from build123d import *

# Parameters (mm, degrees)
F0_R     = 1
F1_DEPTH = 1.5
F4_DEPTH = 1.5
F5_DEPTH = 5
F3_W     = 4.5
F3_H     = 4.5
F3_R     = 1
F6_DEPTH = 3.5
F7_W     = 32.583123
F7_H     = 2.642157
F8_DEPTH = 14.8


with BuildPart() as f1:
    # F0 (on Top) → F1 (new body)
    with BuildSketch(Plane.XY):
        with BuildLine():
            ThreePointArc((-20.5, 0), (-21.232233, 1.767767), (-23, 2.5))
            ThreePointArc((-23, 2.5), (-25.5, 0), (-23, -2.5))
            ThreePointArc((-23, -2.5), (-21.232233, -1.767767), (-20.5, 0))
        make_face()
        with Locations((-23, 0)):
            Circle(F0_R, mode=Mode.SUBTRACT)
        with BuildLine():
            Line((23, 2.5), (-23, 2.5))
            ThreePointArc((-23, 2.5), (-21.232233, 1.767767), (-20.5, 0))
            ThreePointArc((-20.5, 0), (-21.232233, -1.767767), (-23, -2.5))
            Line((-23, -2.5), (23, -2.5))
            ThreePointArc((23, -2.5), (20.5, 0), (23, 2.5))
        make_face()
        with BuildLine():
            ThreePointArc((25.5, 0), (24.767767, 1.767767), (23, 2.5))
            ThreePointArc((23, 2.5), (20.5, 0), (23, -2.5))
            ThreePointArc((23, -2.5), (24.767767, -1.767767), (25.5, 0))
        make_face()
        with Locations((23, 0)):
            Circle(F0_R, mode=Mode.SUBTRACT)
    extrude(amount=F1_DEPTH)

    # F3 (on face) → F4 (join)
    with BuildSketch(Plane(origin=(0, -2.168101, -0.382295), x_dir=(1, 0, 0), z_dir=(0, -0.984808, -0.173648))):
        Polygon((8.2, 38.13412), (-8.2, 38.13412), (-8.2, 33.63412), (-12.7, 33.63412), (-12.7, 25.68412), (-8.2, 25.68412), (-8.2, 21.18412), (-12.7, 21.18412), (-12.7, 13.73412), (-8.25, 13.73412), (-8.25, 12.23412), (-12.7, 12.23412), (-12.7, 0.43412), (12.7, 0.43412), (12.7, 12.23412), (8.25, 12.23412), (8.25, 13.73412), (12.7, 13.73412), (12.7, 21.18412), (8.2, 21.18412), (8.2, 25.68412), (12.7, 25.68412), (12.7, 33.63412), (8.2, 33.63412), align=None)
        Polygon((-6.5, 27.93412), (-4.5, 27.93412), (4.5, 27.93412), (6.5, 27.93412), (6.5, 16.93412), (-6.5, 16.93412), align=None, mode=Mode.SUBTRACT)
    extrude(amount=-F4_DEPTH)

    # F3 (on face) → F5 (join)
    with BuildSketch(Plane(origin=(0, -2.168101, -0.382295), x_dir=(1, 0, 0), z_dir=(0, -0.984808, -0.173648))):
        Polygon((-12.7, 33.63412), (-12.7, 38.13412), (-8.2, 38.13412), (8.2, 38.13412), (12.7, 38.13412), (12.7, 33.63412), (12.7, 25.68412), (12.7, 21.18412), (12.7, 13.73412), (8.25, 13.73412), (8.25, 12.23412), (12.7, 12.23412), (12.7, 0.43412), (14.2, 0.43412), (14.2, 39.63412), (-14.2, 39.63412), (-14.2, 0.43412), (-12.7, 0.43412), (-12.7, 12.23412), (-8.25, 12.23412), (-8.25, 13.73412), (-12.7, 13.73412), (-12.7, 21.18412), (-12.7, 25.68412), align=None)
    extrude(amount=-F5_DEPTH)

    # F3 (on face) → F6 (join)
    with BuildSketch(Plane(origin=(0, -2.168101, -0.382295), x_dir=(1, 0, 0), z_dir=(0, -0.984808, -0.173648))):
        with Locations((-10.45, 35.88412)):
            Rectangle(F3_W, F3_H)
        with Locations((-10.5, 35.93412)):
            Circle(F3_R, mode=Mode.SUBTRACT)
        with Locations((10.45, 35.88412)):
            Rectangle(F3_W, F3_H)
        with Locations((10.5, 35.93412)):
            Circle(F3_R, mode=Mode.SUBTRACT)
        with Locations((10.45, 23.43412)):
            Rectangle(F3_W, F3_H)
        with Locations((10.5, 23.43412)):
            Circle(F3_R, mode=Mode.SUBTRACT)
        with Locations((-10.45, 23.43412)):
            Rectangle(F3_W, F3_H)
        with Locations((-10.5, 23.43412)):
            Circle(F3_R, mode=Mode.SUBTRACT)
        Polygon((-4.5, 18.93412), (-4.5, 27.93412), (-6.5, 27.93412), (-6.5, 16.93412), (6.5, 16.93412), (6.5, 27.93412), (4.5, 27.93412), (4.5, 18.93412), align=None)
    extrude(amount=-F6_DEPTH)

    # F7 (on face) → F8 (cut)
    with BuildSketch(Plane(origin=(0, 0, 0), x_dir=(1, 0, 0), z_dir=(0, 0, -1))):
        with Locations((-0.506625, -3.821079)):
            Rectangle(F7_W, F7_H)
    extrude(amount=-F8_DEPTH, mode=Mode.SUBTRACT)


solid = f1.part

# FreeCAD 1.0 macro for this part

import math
import FreeCAD as App
import Part
import Sketcher
from FreeCAD import Vector


def add_polygon(sketch, points):
    """Adds a closed chain of lines whose ends are joined by coincident constraints."""
    first, n = sketch.GeometryCount, len(points)
    for a, b in zip(points, points[1:] + points[:1]):
        sketch.addGeometry(Part.LineSegment(App.Vector(*a, 0), App.Vector(*b, 0)), False)
    for i in range(n):
        sketch.addConstraint(Sketcher.Constraint("Coincident", first + i, 2, first + (i + 1) % n, 1))

doc = App.newDocument("Part")
params = doc.addObject("Spreadsheet::Sheet", "Params")
for row, (alias, value) in enumerate([
    ("sketch1_diameter", "2 mm"),
    ("sketch1_radius", "2.5 mm"),
    ("sketch1_width", "46 mm"),
    ("pad1_length", "1.5 mm"),
    ("sketch2_width", "13 mm"),
    ("sketch2_height", "11 mm"),
    ("sketch2_width2", "16.4 mm"),
    ("sketch2_width3", "4.5 mm"),
    ("sketch2_height2", "1.5 mm"),
    ("pad2_length", "1.5 mm"),
    ("sketch3_width", "25.4 mm"),
    ("sketch3_width2", "1.5 mm"),
    ("sketch3_height", "24.4 mm"),
    ("sketch3_height2", "11.8 mm"),
    ("sketch3_height3", "39.2 mm"),
    ("pad3_length", "5 mm"),
    ("sketch4_diameter", "2 mm"),
    ("sketch4_width", "2 mm"),
    ("sketch4_width2", "13 mm"),
    ("sketch4_height", "11 mm"),
    ("sketch4_width3", "4.5 mm"),
    ("pad4_length", "3.5 mm"),
    ("pocket1_length", "14.8 mm"),
], start=1):
    params.set(f"A{row}", alias)
    params.set(f"B{row}", "=" + value)
    params.setAlias(f"B{row}", alias)

body = doc.addObject("PartDesign::Body", "Body")

sketch1 = body.newObject("Sketcher::SketchObject", "Sketch")
sketch1.AttachmentSupport = (doc.getObject("XY_Plane"), [""])
sketch1.MapMode = "FlatFace"
sketch1.addGeometry([
    Part.ArcOfCircle(Part.Circle(Vector(-23, 0, 0), Vector(0, 0, 1), 2.5), math.radians(90), math.radians(270)),
    Part.LineSegment(Vector(-23, -2.5, 0), Vector(23, -2.5, 0)),
    Part.ArcOfCircle(Part.Circle(Vector(23, 0, 0), Vector(0, 0, 1), 2.5), math.radians(-90), math.radians(0)),
    Part.ArcOfCircle(Part.Circle(Vector(23, 0, 0), Vector(0, 0, 1), 2.5), math.radians(0), math.radians(90)),
    Part.LineSegment(Vector(23, 2.5, 0), Vector(-23, 2.5, 0)),
    Part.Circle(Vector(-23, 0, 0), Vector(0, 0, 1), 1),
    Part.Circle(Vector(23, 0, 0), Vector(0, 0, 1), 1),
], False)
sketch1.addConstraint([
    Sketcher.Constraint("Tangent", 0, 2, 1, 1),
    Sketcher.Constraint("Tangent", 1, 2, 2, 1),
    Sketcher.Constraint("Tangent", 2, 2, 3, 1),
    Sketcher.Constraint("Tangent", 3, 2, 4, 1),
    Sketcher.Constraint("Tangent", 4, 2, 0, 1),
    Sketcher.Constraint("Horizontal", 1),
    Sketcher.Constraint("Horizontal", 4),
    Sketcher.Constraint("Coincident", 5, 3, 0, 3),
    Sketcher.Constraint("Coincident", 6, 3, 2, 3),
    Sketcher.Constraint("Equal", 0, 2),
    Sketcher.Constraint("Equal", 5, 6),
    Sketcher.Constraint("Symmetric", 0, 3, 2, 3, -1, 1),
    Sketcher.Constraint("PointOnObject", 2, 2, -1),
    Sketcher.Constraint("Diameter", 5, 2.0),
    Sketcher.Constraint("Radius", 0, 2.5),
    Sketcher.Constraint("DistanceX", 1, 1, 1, 2, 46.0),
])
sketch1.setExpression("Constraints[13]", "Params.sketch1_diameter")
sketch1.setExpression("Constraints[14]", "Params.sketch1_radius")
sketch1.setExpression("Constraints[15]", "Params.sketch1_width")
pad1 = body.newObject("PartDesign::Pad", "Pad")
pad1.Profile = sketch1
pad1.setExpression("Length", "Params.pad1_length")

sketch2 = body.newObject("Sketcher::SketchObject", "Sketch001")
sketch2.Placement = App.Placement(Vector(0, -2.168101, -0.382295), App.Rotation(Vector(1, 0, 0), Vector(0, -0.173647963, 0.984807791), Vector(0, -0.984807791, -0.173647963), "ZXY"))
add_polygon(sketch2, [(8.2, 38.1), (-8.2, 38.1), (-8.2, 33.6), (-12.7, 33.6), (-12.7, 25.7), (-8.2, 25.7), (-8.2, 21.2), (-12.7, 21.2), (-12.7, 13.7), (-8.2, 13.7), (-8.2, 12.2), (-12.7, 12.2), (-12.7, 0.4), (12.7, 0.4), (12.7, 12.2), (8.2, 12.2), (8.2, 13.7), (12.7, 13.7), (12.7, 21.2), (8.2, 21.2), (8.2, 25.7), (12.7, 25.7), (12.7, 33.6), (8.2, 33.6)])
add_polygon(sketch2, [(-6.5, 16.9), (-6.5, 27.9), (6.5, 27.9), (6.5, 16.9)])
sketch2.addConstraint([
    Sketcher.Constraint("Horizontal", 0),
    Sketcher.Constraint("Vertical", 1),
    Sketcher.Constraint("Horizontal", 2),
    Sketcher.Constraint("Vertical", 3),
    Sketcher.Constraint("Horizontal", 4),
    Sketcher.Constraint("Vertical", 5),
    Sketcher.Constraint("Horizontal", 6),
    Sketcher.Constraint("Vertical", 7),
    Sketcher.Constraint("Horizontal", 8),
    Sketcher.Constraint("Vertical", 9),
    Sketcher.Constraint("Horizontal", 10),
    Sketcher.Constraint("Vertical", 11),
    Sketcher.Constraint("Horizontal", 12),
    Sketcher.Constraint("Vertical", 13),
    Sketcher.Constraint("Horizontal", 14),
    Sketcher.Constraint("Vertical", 15),
    Sketcher.Constraint("Horizontal", 16),
    Sketcher.Constraint("Vertical", 17),
    Sketcher.Constraint("Horizontal", 18),
    Sketcher.Constraint("Vertical", 19),
    Sketcher.Constraint("Horizontal", 20),
    Sketcher.Constraint("Vertical", 21),
    Sketcher.Constraint("Horizontal", 22),
    Sketcher.Constraint("Vertical", 23),
    Sketcher.Constraint("Vertical", 24),
    Sketcher.Constraint("Horizontal", 25),
    Sketcher.Constraint("Vertical", 26),
    Sketcher.Constraint("Horizontal", 27),
    Sketcher.Constraint("Symmetric", 10, 2, 13, 2, -2),
    Sketcher.Constraint("Symmetric", 8, 2, 15, 2, -2),
    Sketcher.Constraint("Symmetric", 6, 2, 17, 2, -2),
    Sketcher.Constraint("Symmetric", 4, 2, 19, 2, -2),
    Sketcher.Constraint("Symmetric", 2, 2, 21, 2, -2),
    Sketcher.Constraint("Vertical", 1, 2, 4, 2),
    Sketcher.Constraint("Vertical", 3, 2, 6, 2),
    Sketcher.Constraint("Vertical", 7, 2, 10, 2),
    Sketcher.Constraint("Vertical", 19, 2, 22, 2),
    Sketcher.Constraint("Equal", 22, 1),
    Sketcher.Constraint("Equal", 1, 5),
    Sketcher.Constraint("DistanceX", 25, 1, 25, 2, 13.0),
    Sketcher.Constraint("DistanceY", 24, 1, 24, 2, 11.0),
    Sketcher.Constraint("DistanceX", 0, 2, 0, 1, 16.4),
    Sketcher.Constraint("DistanceX", 2, 2, 2, 1, 4.5),
    Sketcher.Constraint("DistanceY", 9, 2, 9, 1, 1.5),
    Sketcher.Constraint("DistanceY", 11, 2, 11, 1, 11.8),
    Sketcher.Constraint("DistanceX", 8, 1, 8, 2, 4.45),
    Sketcher.Constraint("DistanceY", 3, 2, 3, 1, 7.95),
    Sketcher.Constraint("DistanceY", 7, 2, 7, 1, 7.45),
    Sketcher.Constraint("DistanceX", 24, 2, -1, 1, 6.5),
    Sketcher.Constraint("DistanceY", 24, 2, 1, 2, 5.7),
    Sketcher.Constraint("DistanceY", -1, 1, 0, 2, 38.13412),
])
sketch2.setExpression("Constraints[67]", "Params.sketch2_width")
sketch2.setExpression("Constraints[68]", "Params.sketch2_height")
sketch2.setExpression("Constraints[69]", "Params.sketch2_width2")
sketch2.setExpression("Constraints[70]", "Params.sketch2_width3")
sketch2.setExpression("Constraints[71]", "Params.sketch2_height2")
pad2 = body.newObject("PartDesign::Pad", "Pad001")
pad2.Profile = sketch2
pad2.setExpression("Length", "Params.pad2_length")
pad2.Reversed = True

sketch3 = body.newObject("Sketcher::SketchObject", "Sketch002")
sketch3.Placement = App.Placement(Vector(0, -2.168101, -0.382295), App.Rotation(Vector(1, 0, 0), Vector(0, -0.173647963, 0.984807791), Vector(0, -0.984807791, -0.173647963), "ZXY"))
add_polygon(sketch3, [(-12.7, 38.1), (12.7, 38.1), (12.7, 13.7), (8.2, 13.7), (8.2, 12.2), (12.7, 12.2), (12.7, 0.4), (14.2, 0.4), (14.2, 39.6), (-14.2, 39.6), (-14.2, 0.4), (-12.7, 0.4), (-12.7, 12.2), (-8.2, 12.2), (-8.2, 13.7), (-12.7, 13.7)])
sketch3.addConstraint([
    Sketcher.Constraint("Horizontal", 0),
    Sketcher.Constraint("Vertical", 1),
    Sketcher.Constraint("Horizontal", 2),
    Sketcher.Constraint("Vertical", 3),
    Sketcher.Constraint("Horizontal", 4),
    Sketcher.Constraint("Vertical", 5),
    Sketcher.Constraint("Horizontal", 6),
    Sketcher.Constraint("Vertical", 7),
    Sketcher.Constraint("Horizontal", 8),
    Sketcher.Constraint("Vertical", 9),
    Sketcher.Constraint("Horizontal", 10),
    Sketcher.Constraint("Vertical", 11),
    Sketcher.Constraint("Horizontal", 12),
    Sketcher.Constraint("Vertical", 13),
    Sketcher.Constraint("Horizontal", 14),
    Sketcher.Constraint("Vertical", 15),
    Sketcher.Constraint("Symmetric", 6, 2, 9, 2, -2),
    Sketcher.Constraint("Symmetric", 4, 2, 11, 2, -2),
    Sketcher.Constraint("Symmetric", 2, 2, 13, 2, -2),
    Sketcher.Constraint("Vertical", 1, 2, 4, 2),
    Sketcher.Constraint("Vertical", 11, 2, 14, 2),
    Sketcher.Constraint("Equal", 10, 3),
    Sketcher.Constraint("DistanceX", 0, 1, 0, 2, 25.4),
    Sketcher.Constraint("DistanceX", 6, 1, 6, 2, 1.5),
    Sketcher.Constraint("DistanceY", 1, 2, 1, 1, 24.4),
    Sketcher.Constraint("DistanceY", 5, 2, 5, 1, 11.8),
    Sketcher.Constraint("DistanceY", 7, 1, 7, 2, 39.2),
    Sketcher.Constraint("DistanceX", 2, 2, 2, 1, 4.45),
    Sketcher.Constraint("DistanceY", -1, 1, 0, 2, 38.13412),
])
sketch3.setExpression("Constraints[38]", "Params.sketch3_width")
sketch3.setExpression("Constraints[39]", "Params.sketch3_width2")
sketch3.setExpression("Constraints[40]", "Params.sketch3_height")
sketch3.setExpression("Constraints[41]", "Params.sketch3_height2")
sketch3.setExpression("Constraints[42]", "Params.sketch3_height3")
pad3 = body.newObject("PartDesign::Pad", "Pad002")
pad3.Profile = sketch3
pad3.setExpression("Length", "Params.pad3_length")
pad3.Reversed = True

sketch4 = body.newObject("Sketcher::SketchObject", "Sketch003")
sketch4.Placement = App.Placement(Vector(0, -2.168101, -0.382295), App.Rotation(Vector(1, 0, 0), Vector(0, -0.173647963, 0.984807791), Vector(0, -0.984807791, -0.173647963), "ZXY"))
add_polygon(sketch4, [(-12.7, 38.1), (-12.7, 33.6), (-8.2, 33.6), (-8.2, 38.1)])
sketch4.addGeometry(Part.Circle(Vector(-10.5, 35.9, 0), Vector(0, 0, 1), 1), False)
add_polygon(sketch4, [(8.2, 38.1), (8.2, 33.6), (12.7, 33.6), (12.7, 38.1)])
sketch4.addGeometry(Part.Circle(Vector(10.5, 35.9, 0), Vector(0, 0, 1), 1), False)
add_polygon(sketch4, [(8.2, 25.7), (8.2, 21.2), (12.7, 21.2), (12.7, 25.7)])
sketch4.addGeometry(Part.Circle(Vector(10.5, 23.4, 0), Vector(0, 0, 1), 1), False)
add_polygon(sketch4, [(-12.7, 25.7), (-12.7, 21.2), (-8.2, 21.2), (-8.2, 25.7)])
sketch4.addGeometry(Part.Circle(Vector(-10.5, 23.4, 0), Vector(0, 0, 1), 1), False)
add_polygon(sketch4, [(-4.5, 18.9), (-4.5, 27.9), (-6.5, 27.9), (-6.5, 16.9), (6.5, 16.9), (6.5, 27.9), (4.5, 27.9), (4.5, 18.9)])
sketch4.addConstraint([
    Sketcher.Constraint("Vertical", 0),
    Sketcher.Constraint("Horizontal", 1),
    Sketcher.Constraint("Vertical", 2),
    Sketcher.Constraint("Horizontal", 3),
    Sketcher.Constraint("Vertical", 5),
    Sketcher.Constraint("Horizontal", 6),
    Sketcher.Constraint("Vertical", 7),
    Sketcher.Constraint("Horizontal", 8),
    Sketcher.Constraint("Vertical", 10),
    Sketcher.Constraint("Horizontal", 11),
    Sketcher.Constraint("Vertical", 12),
    Sketcher.Constraint("Horizontal", 13),
    Sketcher.Constraint("Vertical", 15),
    Sketcher.Constraint("Horizontal", 16),
    Sketcher.Constraint("Vertical", 17),
    Sketcher.Constraint("Horizontal", 18),
    Sketcher.Constraint("Vertical", 20),
    Sketcher.Constraint("Horizontal", 21),
    Sketcher.Constraint("Vertical", 22),
    Sketcher.Constraint("Horizontal", 23),
    Sketcher.Constraint("Vertical", 24),
    Sketcher.Constraint("Horizontal", 25),
    Sketcher.Constraint("Vertical", 26),
    Sketcher.Constraint("Horizontal", 27),
    Sketcher.Constraint("Equal", 4, 9),
    Sketcher.Constraint("Equal", 9, 14),
    Sketcher.Constraint("Equal", 14, 19),
    Sketcher.Constraint("Symmetric", 4, 3, 9, 3, -2),
    Sketcher.Constraint("Symmetric", 14, 3, 19, 3, -2),
    Sketcher.Constraint("Symmetric", 1, 2, 5, 2, -2),
    Sketcher.Constraint("Symmetric", 3, 2, 7, 2, -2),
    Sketcher.Constraint("Symmetric", 11, 2, 15, 2, -2),
    Sketcher.Constraint("Symmetric", 13, 2, 17, 2, -2),
    Sketcher.Constraint("Symmetric", 21, 2, 24, 2, -2),
    Sketcher.Constraint("Vertical", 9, 3, 14, 3),
    Sketcher.Constraint("Vertical", 8, 2, 10, 2),
    Sketcher.Constraint("Vertical", 7, 2, 11, 2),
    Sketcher.Constraint("Equal", 21, 25),
    Sketcher.Constraint("Equal", 18, 0),
    Sketcher.Constraint("Equal", 7, 10),
    Sketcher.Constraint("Equal", 27, 20),
    Sketcher.Constraint("Diameter", 4, 2.0),
    Sketcher.Constraint("DistanceX", 21, 2, 21, 1, 2.0),
    Sketcher.Constraint("DistanceX", 23, 1, 23, 2, 13.0),
    Sketcher.Constraint("DistanceY", 22, 2, 22, 1, 11.0),
    Sketcher.Constraint("DistanceX", 1, 1, 1, 2, 4.5),
    Sketcher.Constraint("DistanceX", 4, 3, 9, 3, 21.0),
    Sketcher.Constraint("DistanceX", 0, 2, -1, 1, 12.7),
    Sketcher.Constraint("DistanceY", 14, 3, 9, 3, 12.5),
    Sketcher.Constraint("DistanceY", 0, 2, 4, 3, 2.3),
    Sketcher.Constraint("DistanceY", 20, 2, 1, 2, 5.7),
    Sketcher.Constraint("DistanceY", 10, 2, 14, 3, 2.25),
    Sketcher.Constraint("DistanceY", -1, 1, 4, 3, 35.93412),
])
sketch4.setExpression("Constraints[65]", "Params.sketch4_diameter")
sketch4.setExpression("Constraints[66]", "Params.sketch4_width")
sketch4.setExpression("Constraints[67]", "Params.sketch4_width2")
sketch4.setExpression("Constraints[68]", "Params.sketch4_height")
sketch4.setExpression("Constraints[69]", "Params.sketch4_width3")
pad4 = body.newObject("PartDesign::Pad", "Pad003")
pad4.Profile = sketch4
pad4.setExpression("Length", "Params.pad4_length")
pad4.Reversed = True

sketch5 = body.newObject("Sketcher::SketchObject", "Sketch004")
sketch5.AttachmentSupport = (doc.getObject("XY_Plane"), [""])
sketch5.MapMode = "FlatFace"
add_polygon(sketch5, [(-16.8, 2.5), (-16.8, 5.1), (15.8, 5.1), (15.8, 2.5)])
sketch5.addConstraint([
    Sketcher.Constraint("Vertical", 0),
    Sketcher.Constraint("Horizontal", 1),
    Sketcher.Constraint("Vertical", 2),
    Sketcher.Constraint("Horizontal", 3),
    Sketcher.Constraint("DistanceY", -1, 1, 2, 2, 2.500001),
    Sketcher.Constraint("DistanceX", 1, 1, 1, 2, 32.583123),
    Sketcher.Constraint("DistanceY", 0, 1, 0, 2, 2.642157),
    Sketcher.Constraint("DistanceX", 0, 2, -1, 1, 16.798186),
])
pocket1 = body.newObject("PartDesign::Pocket", "Pocket")
pocket1.Profile = sketch5
pocket1.setExpression("Length", "Params.pocket1_length")
pocket1.Reversed = True

doc.recompute()
